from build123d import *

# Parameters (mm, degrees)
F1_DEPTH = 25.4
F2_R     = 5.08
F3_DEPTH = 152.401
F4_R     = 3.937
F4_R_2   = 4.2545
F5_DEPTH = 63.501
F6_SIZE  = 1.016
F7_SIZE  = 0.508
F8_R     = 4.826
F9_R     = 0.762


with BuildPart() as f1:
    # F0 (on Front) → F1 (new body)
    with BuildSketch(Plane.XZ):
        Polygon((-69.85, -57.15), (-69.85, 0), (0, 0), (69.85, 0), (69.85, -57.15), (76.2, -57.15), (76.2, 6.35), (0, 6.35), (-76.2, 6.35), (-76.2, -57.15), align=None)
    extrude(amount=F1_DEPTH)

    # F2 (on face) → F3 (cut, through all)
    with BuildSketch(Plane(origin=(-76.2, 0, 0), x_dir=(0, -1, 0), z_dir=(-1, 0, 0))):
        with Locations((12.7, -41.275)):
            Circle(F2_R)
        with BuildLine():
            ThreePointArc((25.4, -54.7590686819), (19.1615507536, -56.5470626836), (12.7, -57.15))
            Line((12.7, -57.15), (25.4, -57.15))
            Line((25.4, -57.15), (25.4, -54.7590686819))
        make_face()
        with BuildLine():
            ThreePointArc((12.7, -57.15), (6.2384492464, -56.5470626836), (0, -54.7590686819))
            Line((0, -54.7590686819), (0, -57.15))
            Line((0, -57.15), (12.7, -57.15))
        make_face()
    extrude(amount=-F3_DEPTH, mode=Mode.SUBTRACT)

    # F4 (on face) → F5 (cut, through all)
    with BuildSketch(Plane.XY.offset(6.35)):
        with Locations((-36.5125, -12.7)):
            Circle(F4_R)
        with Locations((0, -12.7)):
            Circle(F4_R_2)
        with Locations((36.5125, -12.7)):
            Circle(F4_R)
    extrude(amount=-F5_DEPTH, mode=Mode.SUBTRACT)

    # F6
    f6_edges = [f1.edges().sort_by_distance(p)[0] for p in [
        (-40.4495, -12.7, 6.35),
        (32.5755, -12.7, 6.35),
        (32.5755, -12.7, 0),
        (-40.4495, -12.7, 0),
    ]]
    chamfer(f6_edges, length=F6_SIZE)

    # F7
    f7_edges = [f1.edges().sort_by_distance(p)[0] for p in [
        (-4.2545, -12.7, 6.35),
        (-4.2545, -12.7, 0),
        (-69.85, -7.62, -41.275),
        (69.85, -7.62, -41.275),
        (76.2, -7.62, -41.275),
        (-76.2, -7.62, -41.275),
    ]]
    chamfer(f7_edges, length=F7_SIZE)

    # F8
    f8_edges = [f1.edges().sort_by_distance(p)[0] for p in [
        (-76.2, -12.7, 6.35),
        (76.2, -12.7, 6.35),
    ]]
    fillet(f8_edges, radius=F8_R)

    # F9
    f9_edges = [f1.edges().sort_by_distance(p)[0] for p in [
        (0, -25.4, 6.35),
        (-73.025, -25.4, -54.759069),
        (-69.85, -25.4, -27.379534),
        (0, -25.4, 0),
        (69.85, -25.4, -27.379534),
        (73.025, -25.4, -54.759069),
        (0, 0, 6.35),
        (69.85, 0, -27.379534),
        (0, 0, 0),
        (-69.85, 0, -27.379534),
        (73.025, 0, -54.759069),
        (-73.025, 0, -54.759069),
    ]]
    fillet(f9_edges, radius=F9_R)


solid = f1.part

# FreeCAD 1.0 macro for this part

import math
import FreeCAD as App
import Part
import Sketcher

V = App.Vector
Q = App.Units.Quantity


def edges_at(feature, points):
    """Names of the edges that pass closest to the given points."""
    edges = feature.Shape.Edges
    near = lambda p: min(range(len(edges)), key=lambda i: edges[i].distToShape(Part.Vertex(*p))[0])
    return sorted({f"Edge{near(p) + 1}" for p in points})

doc = App.newDocument("Part")
params = doc.addObject("Spreadsheet::Sheet", "Params")
for row, (alias, value) in enumerate([
    ("sketch1_width", "6 in"),
    ("sketch1_width2", "5.5 in"),
    ("sketch1_height", "2.5 in"),
    ("sketch1_height2", "2.25 in"),
    ("pad1_length", "1 in"),
    ("sketch2_diameter", "0.4 in"),
    ("sketch2_width", "0.5 in"),
    ("sketch2_radius", "1.375 in"),
    ("sketch3_diameter", "0.31 in"),
    ("sketch3_diameter2", "0.335 in"),
    ("chamfer_size", "0.04 in"),
    ("chamfer2_size", "0.02 in"),
    ("fillet_radius", "0.19 in"),
    ("fillet2_radius", "0.03 in"),
], start=1):
    params.set(f"A{row}", alias)
    params.set(f"B{row}", "=" + value)
    params.setAlias(f"B{row}", alias)

body = doc.addObject("PartDesign::Body", "Body")

# Sketch on XZ plane
sketch1 = body.newObject("Sketcher::SketchObject", "Sketch")
sketch1.AttachmentSupport = (doc.getObject("XZ_Plane"), [""])
sketch1.MapMode = "FlatFace"
sketch1.addGeometry(Part.LineSegment(V(-69.85, -57.15, 0), V(-69.85, 0, 0)), False)
sketch1.addGeometry(Part.LineSegment(V(-69.85, 0, 0), V(69.85, 0, 0)), False)
sketch1.addGeometry(Part.LineSegment(V(69.85, 0, 0), V(69.85, -57.15, 0)), False)
sketch1.addGeometry(Part.LineSegment(V(69.85, -57.15, 0), V(76.2, -57.15, 0)), False)
sketch1.addGeometry(Part.LineSegment(V(76.2, -57.15, 0), V(76.2, 6.35, 0)), False)
sketch1.addGeometry(Part.LineSegment(V(76.2, 6.35, 0), V(-76.2, 6.35, 0)), False)
sketch1.addGeometry(Part.LineSegment(V(-76.2, 6.35, 0), V(-76.2, -57.15, 0)), False)
sketch1.addGeometry(Part.LineSegment(V(-76.2, -57.15, 0), V(-69.85, -57.15, 0)), False)
sketch1.addConstraint(Sketcher.Constraint("Coincident", 0, 2, 1, 1))
sketch1.addConstraint(Sketcher.Constraint("Coincident", 1, 2, 2, 1))
sketch1.addConstraint(Sketcher.Constraint("Coincident", 2, 2, 3, 1))
sketch1.addConstraint(Sketcher.Constraint("Coincident", 3, 2, 4, 1))
sketch1.addConstraint(Sketcher.Constraint("Coincident", 4, 2, 5, 1))
sketch1.addConstraint(Sketcher.Constraint("Coincident", 5, 2, 6, 1))
sketch1.addConstraint(Sketcher.Constraint("Coincident", 6, 2, 7, 1))
sketch1.addConstraint(Sketcher.Constraint("Coincident", 7, 2, 0, 1))
sketch1.addConstraint(Sketcher.Constraint("Vertical", 0))
sketch1.addConstraint(Sketcher.Constraint("Horizontal", 1))
sketch1.addConstraint(Sketcher.Constraint("Vertical", 2))
sketch1.addConstraint(Sketcher.Constraint("Horizontal", 3))
sketch1.addConstraint(Sketcher.Constraint("Vertical", 4))
sketch1.addConstraint(Sketcher.Constraint("Horizontal", 5))
sketch1.addConstraint(Sketcher.Constraint("Vertical", 6))
sketch1.addConstraint(Sketcher.Constraint("Horizontal", 7))
sketch1.addConstraint(Sketcher.Constraint("Symmetric", 0, 2, 1, 2, -1, 1))
sketch1.addConstraint(Sketcher.Constraint("Symmetric", 3, 2, 6, 2, -2))
sketch1.addConstraint(Sketcher.Constraint("DistanceX", 5, 2, 5, 1, Q("6 in")))
sketch1.addConstraint(Sketcher.Constraint("DistanceX", 1, 1, 1, 2, Q("5.5 in")))
sketch1.addConstraint(Sketcher.Constraint("DistanceY", 4, 1, 4, 2, Q("2.5 in")))
sketch1.addConstraint(Sketcher.Constraint("DistanceY", 0, 1, 0, 2, Q("2.25 in")))
sketch1.setExpression("Constraints[18]", "Params.sketch1_width")
sketch1.setExpression("Constraints[19]", "Params.sketch1_width2")
sketch1.setExpression("Constraints[20]", "Params.sketch1_height")
sketch1.setExpression("Constraints[21]", "Params.sketch1_height2")
pad1 = body.newObject("PartDesign::Pad", "Pad")
pad1.Profile = sketch1
pad1.setExpression("Length", "Params.pad1_length")

# Sketch on YZ plane
sketch2 = body.newObject("Sketcher::SketchObject", "Sketch001")
sketch2.AttachmentSupport = (doc.getObject("YZ_Plane"), [""])
sketch2.MapMode = "FlatFace"
sketch2.AttachmentOffset = App.Placement(V(0, 0, -3 * 25.4), App.Rotation())
sketch2.addGeometry(Part.Circle(V(-12.7, -41.275, 0), V(0, 0, 1), 5.08), False)
sketch2.addGeometry(Part.ArcOfCircle(Part.Circle(V(-12.7, -22.225, 0), V(0, 0, 1), 34.925), math.radians(-111.323686), math.radians(-90)), False)
sketch2.addGeometry(Part.LineSegment(V(-12.7, -57.15, 0), V(-25.4, -57.15, 0)), False)
sketch2.addGeometry(Part.LineSegment(V(-25.4, -57.15, 0), V(-25.4, -54.759069, 0)), False)
sketch2.addGeometry(Part.ArcOfCircle(Part.Circle(V(-12.7, -22.225, 0), V(0, 0, 1), 34.925), math.radians(-90), math.radians(-68.676314)), False)
sketch2.addGeometry(Part.LineSegment(V(0, -54.759069, 0), V(0, -57.15, 0)), False)
sketch2.addGeometry(Part.LineSegment(V(0, -57.15, 0), V(-12.7, -57.15, 0)), False)
sketch2.addConstraint(Sketcher.Constraint("Tangent", 1, 2, 2, 1))
sketch2.addConstraint(Sketcher.Constraint("Coincident", 2, 2, 3, 1))
sketch2.addConstraint(Sketcher.Constraint("Coincident", 3, 2, 1, 1))
sketch2.addConstraint(Sketcher.Constraint("Coincident", 4, 2, 5, 1))
sketch2.addConstraint(Sketcher.Constraint("Coincident", 5, 2, 6, 1))
sketch2.addConstraint(Sketcher.Constraint("Tangent", 6, 2, 4, 1))
sketch2.addConstraint(Sketcher.Constraint("Horizontal", 2))
sketch2.addConstraint(Sketcher.Constraint("Vertical", 3))
sketch2.addConstraint(Sketcher.Constraint("Vertical", 5))
sketch2.addConstraint(Sketcher.Constraint("Horizontal", 6))
sketch2.addConstraint(Sketcher.Constraint("Coincident", 4, 3, 1, 3))
sketch2.addConstraint(Sketcher.Constraint("Equal", 1, 4))
sketch2.addConstraint(Sketcher.Constraint("PointOnObject", 4, 2, -2))
sketch2.addConstraint(Sketcher.Constraint("Horizontal", 3, 2, 4, 2))
sketch2.addConstraint(Sketcher.Constraint("Vertical", 0, 3, 1, 3))
sketch2.addConstraint(Sketcher.Constraint("Diameter", 0, Q("0.4 in")))
sketch2.addConstraint(Sketcher.Constraint("DistanceX", 2, 2, 2, 1, Q("0.5 in")))
sketch2.addConstraint(Sketcher.Constraint("Radius", 1, Q("1.375 in")))
sketch2.addConstraint(Sketcher.Constraint("DistanceY", 1, 2, -1, 1, Q("2.25 in")))
sketch2.addConstraint(Sketcher.Constraint("DistanceY", 0, 3, 1, 3, Q("0.75 in")))
sketch2.setExpression("Constraints[15]", "Params.sketch2_diameter")
sketch2.setExpression("Constraints[16]", "Params.sketch2_width")
sketch2.setExpression("Constraints[17]", "Params.sketch2_radius")
pocket1 = body.newObject("PartDesign::Pocket", "Pocket")
pocket1.Profile = sketch2
pocket1.Type = "ThroughAll"
pocket1.Reversed = True

# Sketch on XY plane
sketch3 = body.newObject("Sketcher::SketchObject", "Sketch002")
sketch3.AttachmentSupport = (doc.getObject("XY_Plane"), [""])
sketch3.MapMode = "FlatFace"
sketch3.AttachmentOffset = App.Placement(V(0, 0, 0.25 * 25.4), App.Rotation())
sketch3.addGeometry(Part.Circle(V(-36.5125, -12.7, 0), V(0, 0, 1), 3.937), False)
sketch3.addGeometry(Part.Circle(V(0, -12.7, 0), V(0, 0, 1), 4.2545), False)
sketch3.addGeometry(Part.Circle(V(36.5125, -12.7, 0), V(0, 0, 1), 3.937), False)
sketch3.addConstraint(Sketcher.Constraint("Equal", 0, 2))
sketch3.addConstraint(Sketcher.Constraint("Symmetric", 0, 3, 2, 3, -2))
sketch3.addConstraint(Sketcher.Constraint("PointOnObject", 1, 3, -2))
sketch3.addConstraint(Sketcher.Constraint("Horizontal", 0, 3, 1, 3))
sketch3.addConstraint(Sketcher.Constraint("Diameter", 0, Q("0.31 in")))
sketch3.addConstraint(Sketcher.Constraint("Diameter", 1, Q("0.335 in")))
sketch3.addConstraint(Sketcher.Constraint("DistanceY", 0, 3, -1, 1, Q("0.5 in")))
sketch3.addConstraint(Sketcher.Constraint("DistanceX", 0, 3, -1, 1, Q("1.4375 in")))
sketch3.setExpression("Constraints[4]", "Params.sketch3_diameter")
sketch3.setExpression("Constraints[5]", "Params.sketch3_diameter2")
pocket2 = body.newObject("PartDesign::Pocket", "Pocket001")
pocket2.Profile = sketch3
pocket2.Type = "ThroughAll"
doc.recompute()

chamfer = body.newObject("PartDesign::Chamfer", "Chamfer")
chamfer.Base = (pocket2, edges_at(pocket2, [
    (-40.45, -12.7, 6.35),
    (32.575, -12.7, 6.35),
    (32.575, -12.7, 0),
    (-40.45, -12.7, 0),
]))
chamfer.setExpression("Size", "Params.chamfer_size")
doc.recompute()

chamfer2 = body.newObject("PartDesign::Chamfer", "Chamfer001")
chamfer2.Base = (chamfer, edges_at(chamfer, [
    (-4.255, -12.7, 6.35),
    (-4.255, -12.7, 0),
    (-69.85, -7.62, -41.275),
    (69.85, -7.62, -41.275),
    (76.2, -7.62, -41.275),
    (-76.2, -7.62, -41.275),
]))
chamfer2.setExpression("Size", "Params.chamfer2_size")
doc.recompute()

fillet = body.newObject("PartDesign::Fillet", "Fillet")
fillet.Base = (chamfer2, edges_at(chamfer2, [(-76.2, -12.7, 6.35), (76.2, -12.7, 6.35)]))
fillet.setExpression("Radius", "Params.fillet_radius")
doc.recompute()

fillet2 = body.newObject("PartDesign::Fillet", "Fillet001")
fillet2.Base = (fillet, edges_at(fillet, [
    (0, -25.4, 6.35),
    (-73.025, -25.4, -54.759),
    (-69.85, -25.4, -27.38),
    (0, -25.4, 0),
    (69.85, -25.4, -27.38),
    (73.025, -25.4, -54.759),
    (0, 0, 6.35),
    (69.85, 0, -27.38),
    (0, 0, 0),
    (-69.85, 0, -27.38),
    (73.025, 0, -54.759),
    (-73.025, 0, -54.759),
]))
fillet2.setExpression("Radius", "Params.fillet2_radius")

doc.recompute()
